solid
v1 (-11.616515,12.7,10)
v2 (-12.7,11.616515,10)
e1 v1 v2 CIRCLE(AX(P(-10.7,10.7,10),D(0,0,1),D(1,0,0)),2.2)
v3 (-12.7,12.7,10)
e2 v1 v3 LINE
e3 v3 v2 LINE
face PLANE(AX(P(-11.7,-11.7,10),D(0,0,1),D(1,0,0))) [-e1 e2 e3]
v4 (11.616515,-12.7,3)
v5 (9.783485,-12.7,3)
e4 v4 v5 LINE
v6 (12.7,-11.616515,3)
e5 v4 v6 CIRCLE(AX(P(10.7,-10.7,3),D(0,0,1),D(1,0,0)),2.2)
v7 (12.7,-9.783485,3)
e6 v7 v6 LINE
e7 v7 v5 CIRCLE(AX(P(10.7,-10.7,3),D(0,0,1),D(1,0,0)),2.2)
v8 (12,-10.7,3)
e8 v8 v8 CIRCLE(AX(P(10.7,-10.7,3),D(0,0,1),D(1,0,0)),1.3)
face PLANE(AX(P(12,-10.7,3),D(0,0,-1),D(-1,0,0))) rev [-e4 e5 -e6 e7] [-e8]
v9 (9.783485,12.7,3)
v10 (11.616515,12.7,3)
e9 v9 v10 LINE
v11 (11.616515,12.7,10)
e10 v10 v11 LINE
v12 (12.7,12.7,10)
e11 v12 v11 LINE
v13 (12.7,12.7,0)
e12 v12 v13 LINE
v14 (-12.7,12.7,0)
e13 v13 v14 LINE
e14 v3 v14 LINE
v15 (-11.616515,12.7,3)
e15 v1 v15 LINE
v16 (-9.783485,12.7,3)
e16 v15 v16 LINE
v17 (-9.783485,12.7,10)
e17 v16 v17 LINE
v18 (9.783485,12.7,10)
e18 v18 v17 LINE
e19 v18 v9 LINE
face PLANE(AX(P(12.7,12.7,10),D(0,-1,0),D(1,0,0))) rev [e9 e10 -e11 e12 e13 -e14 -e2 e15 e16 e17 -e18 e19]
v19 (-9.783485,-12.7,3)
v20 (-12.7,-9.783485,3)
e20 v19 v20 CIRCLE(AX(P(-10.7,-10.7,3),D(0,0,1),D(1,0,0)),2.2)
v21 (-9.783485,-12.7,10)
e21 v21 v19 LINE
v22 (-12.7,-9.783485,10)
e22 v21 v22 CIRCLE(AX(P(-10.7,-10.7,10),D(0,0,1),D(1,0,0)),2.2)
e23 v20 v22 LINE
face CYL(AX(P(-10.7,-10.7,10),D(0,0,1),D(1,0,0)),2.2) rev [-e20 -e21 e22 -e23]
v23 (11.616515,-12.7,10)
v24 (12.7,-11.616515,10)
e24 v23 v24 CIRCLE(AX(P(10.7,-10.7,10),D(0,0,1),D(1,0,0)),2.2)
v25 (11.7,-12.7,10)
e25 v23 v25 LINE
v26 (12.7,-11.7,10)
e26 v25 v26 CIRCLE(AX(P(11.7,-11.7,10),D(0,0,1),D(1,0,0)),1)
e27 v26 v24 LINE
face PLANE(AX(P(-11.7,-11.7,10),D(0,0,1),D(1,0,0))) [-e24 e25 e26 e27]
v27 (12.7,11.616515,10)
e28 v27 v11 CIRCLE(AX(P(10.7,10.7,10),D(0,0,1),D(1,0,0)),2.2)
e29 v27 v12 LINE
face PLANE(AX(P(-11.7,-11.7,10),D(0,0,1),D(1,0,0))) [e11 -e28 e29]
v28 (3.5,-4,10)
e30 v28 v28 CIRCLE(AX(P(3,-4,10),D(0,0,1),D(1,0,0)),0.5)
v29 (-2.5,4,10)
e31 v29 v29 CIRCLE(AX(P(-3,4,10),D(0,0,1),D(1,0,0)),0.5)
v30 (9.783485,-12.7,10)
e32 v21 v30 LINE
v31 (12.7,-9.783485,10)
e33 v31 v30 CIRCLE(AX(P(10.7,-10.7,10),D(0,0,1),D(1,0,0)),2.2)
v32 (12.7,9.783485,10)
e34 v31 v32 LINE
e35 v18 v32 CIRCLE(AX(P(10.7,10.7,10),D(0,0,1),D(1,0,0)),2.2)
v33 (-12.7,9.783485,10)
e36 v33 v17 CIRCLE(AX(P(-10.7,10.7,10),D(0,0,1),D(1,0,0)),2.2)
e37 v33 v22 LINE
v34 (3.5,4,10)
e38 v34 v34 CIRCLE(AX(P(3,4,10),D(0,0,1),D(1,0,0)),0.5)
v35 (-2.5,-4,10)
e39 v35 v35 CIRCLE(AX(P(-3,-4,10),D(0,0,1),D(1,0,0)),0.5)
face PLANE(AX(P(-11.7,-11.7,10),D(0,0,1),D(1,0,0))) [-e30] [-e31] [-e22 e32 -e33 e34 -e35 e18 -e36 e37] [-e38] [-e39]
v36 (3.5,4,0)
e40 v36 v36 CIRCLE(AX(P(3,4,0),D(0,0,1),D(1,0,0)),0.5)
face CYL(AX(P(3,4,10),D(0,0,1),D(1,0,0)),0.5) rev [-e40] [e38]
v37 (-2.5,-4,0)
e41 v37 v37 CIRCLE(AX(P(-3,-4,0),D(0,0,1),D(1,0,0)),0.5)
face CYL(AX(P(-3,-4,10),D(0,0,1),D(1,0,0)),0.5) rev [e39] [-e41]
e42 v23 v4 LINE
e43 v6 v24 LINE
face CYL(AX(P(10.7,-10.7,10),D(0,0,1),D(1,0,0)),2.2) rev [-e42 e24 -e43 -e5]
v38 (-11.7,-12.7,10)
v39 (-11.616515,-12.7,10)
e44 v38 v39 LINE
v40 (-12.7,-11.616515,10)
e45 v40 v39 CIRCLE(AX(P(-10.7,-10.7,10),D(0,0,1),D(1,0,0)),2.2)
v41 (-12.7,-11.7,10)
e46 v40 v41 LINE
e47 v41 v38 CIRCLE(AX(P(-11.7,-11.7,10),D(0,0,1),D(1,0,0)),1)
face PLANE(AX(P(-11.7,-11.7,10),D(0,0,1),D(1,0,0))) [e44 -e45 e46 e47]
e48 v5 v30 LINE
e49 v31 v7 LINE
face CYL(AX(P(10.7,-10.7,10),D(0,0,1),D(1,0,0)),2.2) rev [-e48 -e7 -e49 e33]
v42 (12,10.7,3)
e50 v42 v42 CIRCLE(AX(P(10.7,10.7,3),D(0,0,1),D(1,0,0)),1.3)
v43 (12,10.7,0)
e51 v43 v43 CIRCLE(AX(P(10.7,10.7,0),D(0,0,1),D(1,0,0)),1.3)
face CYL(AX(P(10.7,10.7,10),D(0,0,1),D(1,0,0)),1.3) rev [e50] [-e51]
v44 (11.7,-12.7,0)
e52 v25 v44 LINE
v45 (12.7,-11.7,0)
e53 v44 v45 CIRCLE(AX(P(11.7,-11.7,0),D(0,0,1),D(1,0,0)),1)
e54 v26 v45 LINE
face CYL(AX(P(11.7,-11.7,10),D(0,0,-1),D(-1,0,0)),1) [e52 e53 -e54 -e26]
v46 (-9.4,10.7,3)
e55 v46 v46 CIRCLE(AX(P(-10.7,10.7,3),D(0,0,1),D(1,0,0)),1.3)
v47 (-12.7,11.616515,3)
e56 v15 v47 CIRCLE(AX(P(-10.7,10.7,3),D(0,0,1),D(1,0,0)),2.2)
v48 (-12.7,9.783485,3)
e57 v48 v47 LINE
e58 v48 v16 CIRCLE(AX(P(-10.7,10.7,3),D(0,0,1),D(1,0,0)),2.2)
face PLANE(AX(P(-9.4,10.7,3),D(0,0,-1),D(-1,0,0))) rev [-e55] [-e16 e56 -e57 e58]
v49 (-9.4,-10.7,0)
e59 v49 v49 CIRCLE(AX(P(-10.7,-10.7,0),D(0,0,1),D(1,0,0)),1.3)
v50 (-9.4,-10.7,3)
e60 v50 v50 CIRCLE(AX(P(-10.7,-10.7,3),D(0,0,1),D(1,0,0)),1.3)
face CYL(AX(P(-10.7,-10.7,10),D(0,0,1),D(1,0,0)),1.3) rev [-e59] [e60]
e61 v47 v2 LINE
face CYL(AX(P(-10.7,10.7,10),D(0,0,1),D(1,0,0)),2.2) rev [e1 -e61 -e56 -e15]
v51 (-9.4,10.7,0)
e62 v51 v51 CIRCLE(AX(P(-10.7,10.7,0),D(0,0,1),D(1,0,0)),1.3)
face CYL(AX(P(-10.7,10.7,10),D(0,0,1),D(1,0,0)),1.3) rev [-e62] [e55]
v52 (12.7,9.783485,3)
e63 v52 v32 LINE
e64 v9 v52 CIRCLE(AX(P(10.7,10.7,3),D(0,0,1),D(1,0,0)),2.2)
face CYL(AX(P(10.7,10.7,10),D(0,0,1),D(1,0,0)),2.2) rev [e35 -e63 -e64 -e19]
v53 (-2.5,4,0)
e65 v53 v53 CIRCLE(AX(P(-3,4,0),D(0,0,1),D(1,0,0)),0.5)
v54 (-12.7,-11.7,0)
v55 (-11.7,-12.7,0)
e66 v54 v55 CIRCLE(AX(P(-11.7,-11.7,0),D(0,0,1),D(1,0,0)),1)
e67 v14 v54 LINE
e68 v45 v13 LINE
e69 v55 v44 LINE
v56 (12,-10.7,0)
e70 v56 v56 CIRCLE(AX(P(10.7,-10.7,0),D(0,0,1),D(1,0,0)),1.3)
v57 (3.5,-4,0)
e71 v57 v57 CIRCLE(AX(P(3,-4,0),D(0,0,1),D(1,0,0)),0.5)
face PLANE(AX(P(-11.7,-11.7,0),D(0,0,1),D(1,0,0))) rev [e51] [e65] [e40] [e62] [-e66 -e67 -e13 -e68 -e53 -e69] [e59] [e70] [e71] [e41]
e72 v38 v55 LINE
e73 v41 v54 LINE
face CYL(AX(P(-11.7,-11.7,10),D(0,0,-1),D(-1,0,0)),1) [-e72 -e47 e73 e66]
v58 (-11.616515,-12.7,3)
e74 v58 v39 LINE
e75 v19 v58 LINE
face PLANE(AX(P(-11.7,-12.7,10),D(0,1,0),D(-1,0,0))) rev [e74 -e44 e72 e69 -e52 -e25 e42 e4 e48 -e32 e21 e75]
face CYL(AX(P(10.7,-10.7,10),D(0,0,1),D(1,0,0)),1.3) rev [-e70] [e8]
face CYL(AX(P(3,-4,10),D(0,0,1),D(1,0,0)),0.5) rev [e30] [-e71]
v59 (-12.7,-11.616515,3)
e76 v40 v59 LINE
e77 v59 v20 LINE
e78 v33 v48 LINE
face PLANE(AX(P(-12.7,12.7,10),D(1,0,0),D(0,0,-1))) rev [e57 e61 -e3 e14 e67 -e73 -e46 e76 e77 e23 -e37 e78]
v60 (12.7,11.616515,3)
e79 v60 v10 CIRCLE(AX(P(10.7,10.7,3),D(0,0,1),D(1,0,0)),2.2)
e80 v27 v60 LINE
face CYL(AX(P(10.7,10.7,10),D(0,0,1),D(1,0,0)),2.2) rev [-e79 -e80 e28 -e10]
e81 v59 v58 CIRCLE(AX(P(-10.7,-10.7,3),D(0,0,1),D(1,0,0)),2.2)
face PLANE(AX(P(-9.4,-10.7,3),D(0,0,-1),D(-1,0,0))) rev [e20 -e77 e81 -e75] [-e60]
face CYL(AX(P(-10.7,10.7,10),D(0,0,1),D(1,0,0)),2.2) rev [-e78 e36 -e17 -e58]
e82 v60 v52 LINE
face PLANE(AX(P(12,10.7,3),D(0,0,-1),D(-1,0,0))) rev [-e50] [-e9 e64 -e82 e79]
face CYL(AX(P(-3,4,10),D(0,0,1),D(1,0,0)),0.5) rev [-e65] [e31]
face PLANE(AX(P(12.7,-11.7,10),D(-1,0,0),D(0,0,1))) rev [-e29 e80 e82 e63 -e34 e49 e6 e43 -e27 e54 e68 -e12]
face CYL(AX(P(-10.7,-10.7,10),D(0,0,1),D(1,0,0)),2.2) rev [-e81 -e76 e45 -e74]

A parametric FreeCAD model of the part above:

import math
import FreeCAD as App
import Part
import Sketcher

V = App.Vector

doc = App.newDocument("Part")
params = doc.addObject("Spreadsheet::Sheet", "Params")
for row, (alias, value) in enumerate([
    ("sketch1_radius", "1 mm"),
    ("sketch1_width", "23.4 mm"),
    ("sketch1_height", "24.4 mm"),
    ("pad1_length", "10 mm"),
    ("sketch2_diameter", "1 mm"),
    ("hole_diameter", "1 mm"),
    ("sketch3_diameter", "2.6 mm"),
    ("hole2_diameter", "2.6 mm"),
    ("hole2_cbore_diameter", "4.4 mm"),
    ("hole2_cbore_depth", "7 mm"),
], start=1):
    params.set(f"A{row}", alias)
    params.set(f"B{row}", "=" + value)
    params.setAlias(f"B{row}", alias)

body = doc.addObject("PartDesign::Body", "Body")

sketch1 = body.newObject("Sketcher::SketchObject", "Sketch")
sketch1.AttachmentSupport = (doc.getObject("XY_Plane"), [""])
sketch1.MapMode = "FlatFace"
sketch1.addGeometry(Part.LineSegment(V(-12.7, 12.7, 0), V(-12.7, -11.7, 0)), False)
sketch1.addGeometry(Part.ArcOfCircle(Part.Circle(V(-11.7, -11.7, 0), V(0, 0, 1), 1), math.radians(-180), math.radians(-90)), False)
sketch1.addGeometry(Part.LineSegment(V(-11.7, -12.7, 0), V(11.7, -12.7, 0)), False)
sketch1.addGeometry(Part.ArcOfCircle(Part.Circle(V(11.7, -11.7, 0), V(0, 0, 1), 1), math.radians(-90), math.radians(0)), False)
sketch1.addGeometry(Part.LineSegment(V(12.7, -11.7, 0), V(12.7, 12.7, 0)), False)
sketch1.addGeometry(Part.LineSegment(V(12.7, 12.7, 0), V(-12.7, 12.7, 0)), False)
sketch1.addConstraint(Sketcher.Constraint("Tangent", 0, 2, 1, 1))
sketch1.addConstraint(Sketcher.Constraint("Tangent", 1, 2, 2, 1))
sketch1.addConstraint(Sketcher.Constraint("Tangent", 2, 2, 3, 1))
sketch1.addConstraint(Sketcher.Constraint("Tangent", 3, 2, 4, 1))
sketch1.addConstraint(Sketcher.Constraint("Coincident", 4, 2, 5, 1))
sketch1.addConstraint(Sketcher.Constraint("Coincident", 5, 2, 0, 1))
sketch1.addConstraint(Sketcher.Constraint("Vertical", 0))
sketch1.addConstraint(Sketcher.Constraint("Horizontal", 2))
sketch1.addConstraint(Sketcher.Constraint("Vertical", 4))
sketch1.addConstraint(Sketcher.Constraint("Horizontal", 5))
sketch1.addConstraint(Sketcher.Constraint("Equal", 1, 3))
sketch1.addConstraint(Sketcher.Constraint("Radius", 1, 1.0))
sketch1.addConstraint(Sketcher.Constraint("DistanceX", 2, 1, 2, 2, 23.4))
sketch1.addConstraint(Sketcher.Constraint("DistanceY", 0, 2, 0, 1, 24.4))
sketch1.addConstraint(Sketcher.Constraint("DistanceX", 1, 3, -1, 1, 11.7))
sketch1.addConstraint(Sketcher.Constraint("DistanceY", 1, 3, -1, 1, 11.7))
sketch1.setExpression("Constraints[11]", "Params.sketch1_radius")
sketch1.setExpression("Constraints[12]", "Params.sketch1_width")
sketch1.setExpression("Constraints[13]", "Params.sketch1_height")
pad1 = body.newObject("PartDesign::Pad", "Pad")
pad1.Profile = sketch1
pad1.setExpression("Length", "Params.pad1_length")

sketch2 = body.newObject("Sketcher::SketchObject", "Sketch001")
sketch2.AttachmentSupport = (doc.getObject("XY_Plane"), [""])
sketch2.MapMode = "FlatFace"
sketch2.AttachmentOffset = App.Placement(V(0, 0, 10), App.Rotation())
sketch2.addGeometry(Part.Circle(V(3, -4, 0), V(0, 0, 1), 0.5), False)
sketch2.addGeometry(Part.Circle(V(-3, -4, 0), V(0, 0, 1), 0.5), False)
sketch2.addGeometry(Part.Circle(V(-3, 4, 0), V(0, 0, 1), 0.5), False)
sketch2.addGeometry(Part.Circle(V(3, 4, 0), V(0, 0, 1), 0.5), False)
sketch2.addConstraint(Sketcher.Constraint("Equal", 0, 1))
sketch2.addConstraint(Sketcher.Constraint("Equal", 1, 2))
sketch2.addConstraint(Sketcher.Constraint("Equal", 2, 3))
sketch2.addConstraint(Sketcher.Constraint("Symmetric", 0, 3, 2, 3, -1, 1))
sketch2.addConstraint(Sketcher.Constraint("Symmetric", 1, 3, 3, 3, -1, 1))
sketch2.addConstraint(Sketcher.Constraint("Symmetric", 0, 3, 1, 3, -2))
sketch2.addConstraint(Sketcher.Constraint("Diameter", 0, 1.0))
sketch2.addConstraint(Sketcher.Constraint("DistanceX", -1, 1, 0, 3, 3.0))
sketch2.addConstraint(Sketcher.Constraint("DistanceY", 0, 3, -1, 1, 4.0))
sketch2.setExpression("Constraints[6]", "Params.sketch2_diameter")
doc.recompute()
hole = body.newObject("PartDesign::Hole", "Hole")
hole.Profile = sketch2
hole.ThreadType = "None"
hole.setExpression("Diameter", "Params.hole_diameter")
hole.DepthType = "ThroughAll"

sketch3 = body.newObject("Sketcher::SketchObject", "Sketch002")
sketch3.AttachmentSupport = (doc.getObject("XY_Plane"), [""])
sketch3.MapMode = "FlatFace"
sketch3.AttachmentOffset = App.Placement(V(0, 0, 10), App.Rotation())
sketch3.addGeometry(Part.Circle(V(10.7, -10.7, 0), V(0, 0, 1), 1.3), False)
sketch3.addGeometry(Part.Circle(V(-10.7, -10.7, 0), V(0, 0, 1), 1.3), False)
sketch3.addGeometry(Part.Circle(V(-10.7, 10.7, 0), V(0, 0, 1), 1.3), False)
sketch3.addGeometry(Part.Circle(V(10.7, 10.7, 0), V(0, 0, 1), 1.3), False)
sketch3.addConstraint(Sketcher.Constraint("Equal", 0, 1))
sketch3.addConstraint(Sketcher.Constraint("Equal", 1, 2))
sketch3.addConstraint(Sketcher.Constraint("Equal", 2, 3))
sketch3.addConstraint(Sketcher.Constraint("Symmetric", 0, 3, 2, 3, -1, 1))
sketch3.addConstraint(Sketcher.Constraint("Symmetric", 1, 3, 3, 3, -1, 1))
sketch3.addConstraint(Sketcher.Constraint("Symmetric", 0, 3, 1, 3, -2))
sketch3.addConstraint(Sketcher.Constraint("Diameter", 0, 2.6))
sketch3.addConstraint(Sketcher.Constraint("DistanceX", -1, 1, 0, 3, 10.7))
sketch3.addConstraint(Sketcher.Constraint("DistanceY", 0, 3, -1, 1, 10.7))
sketch3.setExpression("Constraints[6]", "Params.sketch3_diameter")
doc.recompute()
hole2 = body.newObject("PartDesign::Hole", "Hole001")
hole2.Profile = sketch3
hole2.ThreadType = "None"
hole2.setExpression("Diameter", "Params.hole2_diameter")
hole2.DepthType = "ThroughAll"
hole2.HoleCutType = "Counterbore"
hole2.setExpression("HoleCutDiameter", "Params.hole2_cbore_diameter")
hole2.setExpression("HoleCutDepth", "Params.hole2_cbore_depth")

doc.recompute()
